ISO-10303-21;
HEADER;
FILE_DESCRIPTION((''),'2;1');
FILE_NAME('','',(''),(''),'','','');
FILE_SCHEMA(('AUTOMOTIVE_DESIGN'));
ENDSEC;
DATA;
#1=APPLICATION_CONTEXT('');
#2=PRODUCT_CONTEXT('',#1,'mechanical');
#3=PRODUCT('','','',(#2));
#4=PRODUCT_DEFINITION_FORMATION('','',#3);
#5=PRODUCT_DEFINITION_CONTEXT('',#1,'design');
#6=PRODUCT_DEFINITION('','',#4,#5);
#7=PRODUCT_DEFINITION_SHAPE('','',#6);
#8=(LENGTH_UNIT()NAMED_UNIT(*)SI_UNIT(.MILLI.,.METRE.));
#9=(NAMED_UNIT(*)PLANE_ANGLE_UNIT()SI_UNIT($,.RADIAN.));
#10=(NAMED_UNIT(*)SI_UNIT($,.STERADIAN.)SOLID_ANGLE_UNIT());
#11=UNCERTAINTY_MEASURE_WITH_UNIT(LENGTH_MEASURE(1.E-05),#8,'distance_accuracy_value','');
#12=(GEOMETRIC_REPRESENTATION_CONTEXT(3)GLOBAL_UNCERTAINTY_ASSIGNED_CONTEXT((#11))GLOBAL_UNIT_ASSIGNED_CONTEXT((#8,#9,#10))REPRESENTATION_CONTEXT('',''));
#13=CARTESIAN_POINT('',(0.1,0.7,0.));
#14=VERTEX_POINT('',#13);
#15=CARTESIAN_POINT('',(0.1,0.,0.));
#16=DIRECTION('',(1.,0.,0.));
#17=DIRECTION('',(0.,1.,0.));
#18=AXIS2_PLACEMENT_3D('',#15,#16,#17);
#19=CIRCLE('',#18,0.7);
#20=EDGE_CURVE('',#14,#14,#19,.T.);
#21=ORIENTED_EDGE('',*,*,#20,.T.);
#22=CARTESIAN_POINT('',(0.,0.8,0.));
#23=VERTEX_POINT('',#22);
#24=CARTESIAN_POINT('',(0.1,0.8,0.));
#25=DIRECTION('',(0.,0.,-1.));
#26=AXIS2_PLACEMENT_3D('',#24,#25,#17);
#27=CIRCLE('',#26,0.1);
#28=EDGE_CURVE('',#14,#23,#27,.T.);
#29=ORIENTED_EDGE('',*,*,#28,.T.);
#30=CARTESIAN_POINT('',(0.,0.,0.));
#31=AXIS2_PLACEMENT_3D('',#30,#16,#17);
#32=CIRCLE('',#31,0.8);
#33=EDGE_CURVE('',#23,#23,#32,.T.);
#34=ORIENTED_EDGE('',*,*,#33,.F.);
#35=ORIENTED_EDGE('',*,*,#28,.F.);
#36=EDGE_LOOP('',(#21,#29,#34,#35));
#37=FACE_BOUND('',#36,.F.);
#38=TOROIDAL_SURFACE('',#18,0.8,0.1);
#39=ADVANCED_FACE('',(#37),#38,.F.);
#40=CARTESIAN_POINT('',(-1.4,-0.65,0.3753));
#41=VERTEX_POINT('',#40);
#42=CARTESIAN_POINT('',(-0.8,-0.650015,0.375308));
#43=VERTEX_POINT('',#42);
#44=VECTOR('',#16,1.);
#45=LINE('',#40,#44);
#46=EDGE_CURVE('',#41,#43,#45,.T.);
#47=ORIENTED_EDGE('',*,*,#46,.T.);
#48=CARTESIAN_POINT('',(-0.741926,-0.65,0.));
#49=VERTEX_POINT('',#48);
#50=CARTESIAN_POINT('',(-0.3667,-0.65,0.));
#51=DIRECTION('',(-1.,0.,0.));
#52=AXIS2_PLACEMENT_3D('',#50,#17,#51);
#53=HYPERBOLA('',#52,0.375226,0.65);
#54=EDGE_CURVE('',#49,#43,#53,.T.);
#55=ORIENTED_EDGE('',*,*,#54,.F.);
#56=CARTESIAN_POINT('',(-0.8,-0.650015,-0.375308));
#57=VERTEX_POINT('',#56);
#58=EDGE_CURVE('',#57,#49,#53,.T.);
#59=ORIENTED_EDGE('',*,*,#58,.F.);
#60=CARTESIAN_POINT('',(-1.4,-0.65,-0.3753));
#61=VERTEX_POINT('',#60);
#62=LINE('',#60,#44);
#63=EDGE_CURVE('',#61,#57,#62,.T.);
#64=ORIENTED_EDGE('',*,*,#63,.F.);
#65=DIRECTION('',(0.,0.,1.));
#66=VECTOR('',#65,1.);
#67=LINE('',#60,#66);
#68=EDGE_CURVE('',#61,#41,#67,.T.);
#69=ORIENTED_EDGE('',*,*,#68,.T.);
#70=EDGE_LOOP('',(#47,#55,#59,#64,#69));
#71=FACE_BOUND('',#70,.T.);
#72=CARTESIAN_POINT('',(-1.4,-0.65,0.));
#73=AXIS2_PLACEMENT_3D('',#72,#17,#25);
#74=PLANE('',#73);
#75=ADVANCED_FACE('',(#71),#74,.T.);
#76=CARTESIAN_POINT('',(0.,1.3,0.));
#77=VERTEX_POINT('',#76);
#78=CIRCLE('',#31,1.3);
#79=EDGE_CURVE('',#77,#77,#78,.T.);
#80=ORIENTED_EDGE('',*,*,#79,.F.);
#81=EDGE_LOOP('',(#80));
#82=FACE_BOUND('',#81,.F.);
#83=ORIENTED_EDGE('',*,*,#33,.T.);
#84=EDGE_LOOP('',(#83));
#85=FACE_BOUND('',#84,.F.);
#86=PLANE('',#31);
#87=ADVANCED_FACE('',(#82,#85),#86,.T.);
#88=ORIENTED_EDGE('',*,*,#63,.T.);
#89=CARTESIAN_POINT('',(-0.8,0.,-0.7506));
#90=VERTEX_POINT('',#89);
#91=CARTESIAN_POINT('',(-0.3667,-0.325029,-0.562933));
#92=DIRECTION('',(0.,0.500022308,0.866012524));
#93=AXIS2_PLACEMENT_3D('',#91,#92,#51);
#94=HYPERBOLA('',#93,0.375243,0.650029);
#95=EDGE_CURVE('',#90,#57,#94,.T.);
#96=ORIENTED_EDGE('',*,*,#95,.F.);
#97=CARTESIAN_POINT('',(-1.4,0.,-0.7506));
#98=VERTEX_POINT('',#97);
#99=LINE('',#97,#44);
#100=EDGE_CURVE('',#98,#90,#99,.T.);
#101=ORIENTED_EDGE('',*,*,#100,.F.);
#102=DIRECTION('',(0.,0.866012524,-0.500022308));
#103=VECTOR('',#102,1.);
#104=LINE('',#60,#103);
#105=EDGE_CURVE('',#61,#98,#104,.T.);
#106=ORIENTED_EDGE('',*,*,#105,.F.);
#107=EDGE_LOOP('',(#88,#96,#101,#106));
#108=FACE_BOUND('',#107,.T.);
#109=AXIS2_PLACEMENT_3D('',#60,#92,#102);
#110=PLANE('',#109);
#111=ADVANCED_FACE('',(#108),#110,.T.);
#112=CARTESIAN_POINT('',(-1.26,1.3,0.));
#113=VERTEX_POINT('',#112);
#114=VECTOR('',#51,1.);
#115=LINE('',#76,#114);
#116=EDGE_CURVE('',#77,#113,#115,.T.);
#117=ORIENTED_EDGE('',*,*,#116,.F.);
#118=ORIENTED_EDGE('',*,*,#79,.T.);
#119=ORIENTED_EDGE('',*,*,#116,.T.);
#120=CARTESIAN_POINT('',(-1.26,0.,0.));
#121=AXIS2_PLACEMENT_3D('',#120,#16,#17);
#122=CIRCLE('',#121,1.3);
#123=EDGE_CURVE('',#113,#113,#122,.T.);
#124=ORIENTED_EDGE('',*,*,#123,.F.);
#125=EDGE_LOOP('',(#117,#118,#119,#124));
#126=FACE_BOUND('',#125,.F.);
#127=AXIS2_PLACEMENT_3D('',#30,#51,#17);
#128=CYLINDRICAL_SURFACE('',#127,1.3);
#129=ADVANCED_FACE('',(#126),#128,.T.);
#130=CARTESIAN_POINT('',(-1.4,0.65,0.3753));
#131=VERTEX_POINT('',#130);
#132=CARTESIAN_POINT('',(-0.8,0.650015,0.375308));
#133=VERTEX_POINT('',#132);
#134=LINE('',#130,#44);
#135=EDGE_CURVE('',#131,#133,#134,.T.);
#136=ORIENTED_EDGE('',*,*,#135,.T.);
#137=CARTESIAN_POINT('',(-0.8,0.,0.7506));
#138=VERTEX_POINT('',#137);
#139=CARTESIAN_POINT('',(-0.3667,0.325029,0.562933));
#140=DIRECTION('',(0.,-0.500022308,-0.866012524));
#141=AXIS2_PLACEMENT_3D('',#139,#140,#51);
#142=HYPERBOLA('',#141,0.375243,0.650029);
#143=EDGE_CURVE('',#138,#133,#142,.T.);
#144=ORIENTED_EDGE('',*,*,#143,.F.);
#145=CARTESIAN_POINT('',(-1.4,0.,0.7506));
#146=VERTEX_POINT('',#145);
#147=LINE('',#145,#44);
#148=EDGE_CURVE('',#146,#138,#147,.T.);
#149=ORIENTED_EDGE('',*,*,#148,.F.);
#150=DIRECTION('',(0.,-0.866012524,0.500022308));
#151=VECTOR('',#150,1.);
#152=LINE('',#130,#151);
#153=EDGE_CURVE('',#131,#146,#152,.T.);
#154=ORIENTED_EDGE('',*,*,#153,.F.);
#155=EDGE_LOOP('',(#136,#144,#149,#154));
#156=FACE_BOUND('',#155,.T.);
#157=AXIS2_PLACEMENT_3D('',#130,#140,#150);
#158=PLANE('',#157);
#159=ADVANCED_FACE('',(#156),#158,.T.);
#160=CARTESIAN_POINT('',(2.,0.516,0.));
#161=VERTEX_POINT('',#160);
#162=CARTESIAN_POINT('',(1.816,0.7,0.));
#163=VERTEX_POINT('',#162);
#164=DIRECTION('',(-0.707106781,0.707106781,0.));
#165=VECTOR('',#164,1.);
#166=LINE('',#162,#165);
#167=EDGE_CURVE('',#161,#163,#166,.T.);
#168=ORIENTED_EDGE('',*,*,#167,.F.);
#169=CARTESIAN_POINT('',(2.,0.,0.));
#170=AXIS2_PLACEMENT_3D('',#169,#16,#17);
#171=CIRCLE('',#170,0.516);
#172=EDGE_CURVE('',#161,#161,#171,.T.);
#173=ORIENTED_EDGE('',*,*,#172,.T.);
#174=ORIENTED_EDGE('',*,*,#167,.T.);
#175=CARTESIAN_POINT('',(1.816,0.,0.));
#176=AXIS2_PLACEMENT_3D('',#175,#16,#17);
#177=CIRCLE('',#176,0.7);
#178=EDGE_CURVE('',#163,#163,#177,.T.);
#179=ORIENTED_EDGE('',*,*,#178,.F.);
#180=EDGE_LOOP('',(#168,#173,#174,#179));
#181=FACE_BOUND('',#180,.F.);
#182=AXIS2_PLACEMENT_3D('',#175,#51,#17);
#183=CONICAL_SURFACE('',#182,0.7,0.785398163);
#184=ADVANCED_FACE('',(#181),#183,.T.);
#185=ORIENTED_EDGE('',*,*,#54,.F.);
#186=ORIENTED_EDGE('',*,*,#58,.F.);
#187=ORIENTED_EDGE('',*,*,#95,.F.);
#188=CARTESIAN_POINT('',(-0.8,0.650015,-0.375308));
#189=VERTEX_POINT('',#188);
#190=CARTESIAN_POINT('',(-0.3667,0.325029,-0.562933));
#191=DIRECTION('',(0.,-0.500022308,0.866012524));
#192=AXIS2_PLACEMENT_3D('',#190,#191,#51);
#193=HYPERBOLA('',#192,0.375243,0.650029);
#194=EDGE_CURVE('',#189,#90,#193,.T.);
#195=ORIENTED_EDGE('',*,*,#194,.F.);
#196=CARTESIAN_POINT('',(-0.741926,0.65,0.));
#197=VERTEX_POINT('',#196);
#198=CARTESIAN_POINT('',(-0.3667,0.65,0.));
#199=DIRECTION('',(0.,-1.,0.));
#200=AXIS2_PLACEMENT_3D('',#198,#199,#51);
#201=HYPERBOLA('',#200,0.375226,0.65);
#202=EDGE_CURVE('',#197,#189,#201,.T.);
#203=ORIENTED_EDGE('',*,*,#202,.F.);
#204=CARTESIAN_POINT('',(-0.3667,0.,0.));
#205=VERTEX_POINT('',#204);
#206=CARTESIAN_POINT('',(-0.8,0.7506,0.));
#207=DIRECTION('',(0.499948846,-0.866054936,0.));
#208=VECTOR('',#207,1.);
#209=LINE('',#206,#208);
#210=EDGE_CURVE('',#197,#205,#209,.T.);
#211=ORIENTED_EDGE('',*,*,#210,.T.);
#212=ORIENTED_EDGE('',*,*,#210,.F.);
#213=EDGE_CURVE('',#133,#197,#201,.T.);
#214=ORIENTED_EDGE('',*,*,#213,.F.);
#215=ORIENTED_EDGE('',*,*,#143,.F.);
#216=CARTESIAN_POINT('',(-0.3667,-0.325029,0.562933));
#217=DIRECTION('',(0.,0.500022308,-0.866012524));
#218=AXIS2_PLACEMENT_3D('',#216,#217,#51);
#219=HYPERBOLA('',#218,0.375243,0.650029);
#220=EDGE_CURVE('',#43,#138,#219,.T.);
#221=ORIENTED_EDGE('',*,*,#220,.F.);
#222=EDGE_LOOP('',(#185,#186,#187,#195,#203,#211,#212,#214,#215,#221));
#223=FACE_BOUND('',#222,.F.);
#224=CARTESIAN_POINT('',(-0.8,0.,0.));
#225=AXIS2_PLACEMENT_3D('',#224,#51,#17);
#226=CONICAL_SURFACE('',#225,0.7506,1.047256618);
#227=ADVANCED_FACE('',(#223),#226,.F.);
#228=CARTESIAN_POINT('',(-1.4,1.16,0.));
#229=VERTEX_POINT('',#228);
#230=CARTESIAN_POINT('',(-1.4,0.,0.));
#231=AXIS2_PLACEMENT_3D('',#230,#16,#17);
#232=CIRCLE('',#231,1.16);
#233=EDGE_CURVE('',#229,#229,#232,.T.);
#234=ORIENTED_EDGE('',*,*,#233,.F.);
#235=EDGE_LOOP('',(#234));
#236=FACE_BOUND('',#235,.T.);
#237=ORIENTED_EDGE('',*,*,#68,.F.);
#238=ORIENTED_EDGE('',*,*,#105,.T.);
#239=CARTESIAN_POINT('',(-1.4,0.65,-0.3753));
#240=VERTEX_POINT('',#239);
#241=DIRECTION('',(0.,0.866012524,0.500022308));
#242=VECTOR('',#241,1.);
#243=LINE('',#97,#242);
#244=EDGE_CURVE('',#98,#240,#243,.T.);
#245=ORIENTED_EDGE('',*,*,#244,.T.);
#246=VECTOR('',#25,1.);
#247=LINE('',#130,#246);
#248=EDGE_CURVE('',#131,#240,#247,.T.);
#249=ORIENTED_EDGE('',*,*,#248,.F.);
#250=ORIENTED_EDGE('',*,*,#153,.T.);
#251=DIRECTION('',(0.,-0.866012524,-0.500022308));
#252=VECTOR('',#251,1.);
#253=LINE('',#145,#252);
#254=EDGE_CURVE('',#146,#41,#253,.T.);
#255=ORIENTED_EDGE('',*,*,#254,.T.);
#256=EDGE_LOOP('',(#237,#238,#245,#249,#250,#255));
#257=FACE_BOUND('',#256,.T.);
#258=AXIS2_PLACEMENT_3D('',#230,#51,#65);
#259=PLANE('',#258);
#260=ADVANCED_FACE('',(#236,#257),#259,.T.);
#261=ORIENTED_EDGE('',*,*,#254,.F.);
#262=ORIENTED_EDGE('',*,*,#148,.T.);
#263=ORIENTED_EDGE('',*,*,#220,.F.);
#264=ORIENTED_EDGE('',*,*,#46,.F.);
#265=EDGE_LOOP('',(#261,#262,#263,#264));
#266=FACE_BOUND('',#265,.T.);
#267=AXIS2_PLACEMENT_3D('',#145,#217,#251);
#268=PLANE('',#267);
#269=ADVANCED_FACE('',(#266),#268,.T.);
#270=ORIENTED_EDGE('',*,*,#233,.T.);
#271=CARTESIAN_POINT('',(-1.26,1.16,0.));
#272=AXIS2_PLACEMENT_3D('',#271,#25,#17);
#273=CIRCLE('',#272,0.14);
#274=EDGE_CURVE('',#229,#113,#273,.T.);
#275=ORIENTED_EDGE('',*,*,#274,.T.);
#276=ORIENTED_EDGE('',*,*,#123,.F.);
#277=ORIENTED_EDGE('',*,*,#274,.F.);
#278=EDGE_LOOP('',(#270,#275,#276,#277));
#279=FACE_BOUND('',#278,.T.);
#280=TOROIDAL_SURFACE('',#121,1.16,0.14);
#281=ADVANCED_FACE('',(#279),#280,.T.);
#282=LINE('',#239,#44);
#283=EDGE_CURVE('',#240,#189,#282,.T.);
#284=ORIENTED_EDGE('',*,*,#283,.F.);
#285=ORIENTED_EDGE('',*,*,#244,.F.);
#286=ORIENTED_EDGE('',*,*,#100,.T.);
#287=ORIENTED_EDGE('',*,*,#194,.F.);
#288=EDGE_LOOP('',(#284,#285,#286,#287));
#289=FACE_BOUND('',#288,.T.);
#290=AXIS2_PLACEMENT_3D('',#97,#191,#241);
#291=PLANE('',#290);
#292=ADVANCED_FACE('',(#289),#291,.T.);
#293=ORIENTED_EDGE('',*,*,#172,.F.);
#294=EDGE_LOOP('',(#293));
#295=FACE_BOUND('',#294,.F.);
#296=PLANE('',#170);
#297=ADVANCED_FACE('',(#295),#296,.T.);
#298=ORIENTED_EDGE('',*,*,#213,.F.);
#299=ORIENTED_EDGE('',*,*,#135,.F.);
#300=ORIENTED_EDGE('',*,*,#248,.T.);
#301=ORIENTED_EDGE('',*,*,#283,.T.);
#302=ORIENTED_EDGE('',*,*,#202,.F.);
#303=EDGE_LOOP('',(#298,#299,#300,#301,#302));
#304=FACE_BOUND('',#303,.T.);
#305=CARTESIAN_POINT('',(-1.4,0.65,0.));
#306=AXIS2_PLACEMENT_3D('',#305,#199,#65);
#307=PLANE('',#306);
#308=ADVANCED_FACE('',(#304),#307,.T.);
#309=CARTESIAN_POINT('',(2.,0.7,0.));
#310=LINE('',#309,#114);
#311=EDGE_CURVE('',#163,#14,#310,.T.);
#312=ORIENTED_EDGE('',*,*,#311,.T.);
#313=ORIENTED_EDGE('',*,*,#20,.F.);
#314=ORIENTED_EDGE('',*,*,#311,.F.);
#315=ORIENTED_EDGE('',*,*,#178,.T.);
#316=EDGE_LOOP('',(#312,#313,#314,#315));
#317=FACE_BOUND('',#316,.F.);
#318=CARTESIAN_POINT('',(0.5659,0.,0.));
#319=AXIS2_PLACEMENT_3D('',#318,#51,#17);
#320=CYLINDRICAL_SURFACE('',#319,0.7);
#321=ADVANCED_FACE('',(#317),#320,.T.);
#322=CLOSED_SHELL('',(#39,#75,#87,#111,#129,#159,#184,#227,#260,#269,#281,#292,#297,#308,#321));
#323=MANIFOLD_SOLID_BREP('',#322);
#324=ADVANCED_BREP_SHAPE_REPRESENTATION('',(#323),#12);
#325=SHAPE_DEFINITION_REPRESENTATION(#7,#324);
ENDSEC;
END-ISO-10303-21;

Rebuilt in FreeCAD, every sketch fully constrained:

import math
import FreeCAD as App
import Part
import Sketcher


def edges_at(feature, points):
    """Names of the edges that pass closest to the given points."""
    edges = feature.Shape.Edges
    near = lambda p: min(range(len(edges)), key=lambda i: edges[i].distToShape(Part.Vertex(*p))[0])
    return sorted({f"Edge{near(p) + 1}" for p in points})


def add_polygon(sketch, points):
    """Adds a closed chain of lines whose ends are joined by coincident constraints."""
    first, n = sketch.GeometryCount, len(points)
    for a, b in zip(points, points[1:] + points[:1]):
        sketch.addGeometry(Part.LineSegment(App.Vector(*a, 0), App.Vector(*b, 0)), False)
    for i in range(n):
        sketch.addConstraint(Sketcher.Constraint("Coincident", first + i, 2, first + (i + 1) % n, 1))

doc = App.newDocument("Part")
body = doc.addObject("PartDesign::Body", "Body")

# Sketch on XY plane
sketch1 = doc.addObject("Sketcher::SketchObject", "Sketch")
body.addObject(sketch1)
sketch1.AttachmentSupport = (doc.XY_Plane, [""])
sketch1.MapMode = "FlatFace"
add_polygon(sketch1, [(-0.8, 0.8), (-0.4, 0), (2, 0), (2, 0.7), (0, 0.7), (0, 1.3), (-1.4, 1.3), (-1.4, 0.8)])  # lines 0-7
sketch1.addConstraint([
    Sketcher.Constraint("Horizontal", 1),
    Sketcher.Constraint("Vertical", 2),
    Sketcher.Constraint("Horizontal", 3),
    Sketcher.Constraint("Vertical", 4),
    Sketcher.Constraint("Horizontal", 5),
    Sketcher.Constraint("Vertical", 6),
    Sketcher.Constraint("Horizontal", 7),
    Sketcher.Constraint("PointOnObject", 0, 2, -1),
    Sketcher.Constraint("PointOnObject", 3, 2, -2),
    Sketcher.Constraint("Equal", 7, 4),
    Sketcher.Constraint("DistanceX", 3, 2, 3, 1, 2.0),
    Sketcher.Constraint("DistanceX", 5, 2, 5, 1, 1.4),
    Sketcher.Constraint("DistanceX", 7, 1, 7, 2, 0.6),
    Sketcher.Constraint("DistanceY", 2, 1, 2, 2, 0.7),
    Sketcher.Constraint("DistanceX", 1, 1, 1, 2, 2.3667),
    Sketcher.Constraint("DistanceY", 6, 2, 6, 1, 0.5494),
])
revolution = doc.addObject("PartDesign::Revolution", "Revolution")
body.addObject(revolution)
revolution.Profile = sketch1
revolution.ReferenceAxis = (sketch1, ["H_Axis"])
revolution.Angle = 360

# Sketch on YZ plane
sketch2 = doc.addObject("Sketcher::SketchObject", "Sketch001")
body.addObject(sketch2)
sketch2.AttachmentSupport = (doc.YZ_Plane, [""])
sketch2.MapMode = "FlatFace"
sketch2.AttachmentOffset = App.Placement(App.Vector(0, 0, -1.4), App.Rotation())
sketch2.addGeometry([
    Part.LineSegment(App.Vector(0.7, 0.4, 0), App.Vector(0, 0.8, 0)),  # 0
    Part.ArcOfCircle(Part.Circle(App.Vector(0, 0, 0), App.Vector(0, 0, 1), 0.8), math.radians(30), math.radians(90)),  # 1
    Part.ArcOfCircle(Part.Circle(App.Vector(0, 0, 0), App.Vector(0, 0, 1), 0.8), math.radians(90), math.radians(150)),  # 2
    Part.LineSegment(App.Vector(0, 0.8, 0), App.Vector(-0.7, 0.4, 0)),  # 3
    Part.ArcOfCircle(Part.Circle(App.Vector(0, 0, 0), App.Vector(0, 0, 1), 0.8), math.radians(-30), math.radians(30)),  # 4
    Part.LineSegment(App.Vector(0.7, 0.4, 0), App.Vector(0.7, -0.4, 0)),  # 5
    Part.LineSegment(App.Vector(-0.7, 0.4, 0), App.Vector(-0.7, -0.4, 0)),  # 6
    Part.ArcOfCircle(Part.Circle(App.Vector(0, 0, 0), App.Vector(0, 0, 1), 0.8), math.radians(150), math.radians(210)),  # 7
    Part.LineSegment(App.Vector(-0.7, -0.4, 0), App.Vector(0, -0.8, 0)),  # 8
    Part.ArcOfCircle(Part.Circle(App.Vector(0, 0, 0), App.Vector(0, 0, 1), 0.8), math.radians(-150), math.radians(-90)),  # 9
    Part.ArcOfCircle(Part.Circle(App.Vector(0, 0, 0), App.Vector(0, 0, 1), 0.8), math.radians(-90), math.radians(-30)),  # 10
    Part.LineSegment(App.Vector(0, -0.8, 0), App.Vector(0.7, -0.4, 0)),  # 11
], False)
sketch2.addConstraint([
    Sketcher.Constraint("Coincident", 0, 1, 1, 1),
    Sketcher.Constraint("Coincident", 1, 2, 0, 2),
    Sketcher.Constraint("Coincident", 2, 1, 3, 1),
    Sketcher.Constraint("Coincident", 3, 2, 2, 2),
    Sketcher.Constraint("Coincident", 4, 1, 5, 2),
    Sketcher.Constraint("Coincident", 5, 1, 4, 2),
    Sketcher.Constraint("Coincident", 6, 1, 7, 1),
    Sketcher.Constraint("Coincident", 7, 2, 6, 2),
    Sketcher.Constraint("Coincident", 8, 1, 9, 1),
    Sketcher.Constraint("Coincident", 9, 2, 8, 2),
    Sketcher.Constraint("Coincident", 10, 1, 11, 1),
    Sketcher.Constraint("Coincident", 11, 2, 10, 2),
    Sketcher.Constraint("Vertical", 5),
    Sketcher.Constraint("Vertical", 6),
    Sketcher.Constraint("Coincident", 1, 3, -1, 1),
    Sketcher.Constraint("Coincident", 2, 3, -1, 1),
    Sketcher.Constraint("Coincident", 4, 3, -1, 1),
    Sketcher.Constraint("Coincident", 7, 3, -1, 1),
    Sketcher.Constraint("Coincident", 9, 3, -1, 1),
    Sketcher.Constraint("Coincident", 10, 3, -1, 1),
    Sketcher.Constraint("Coincident", 2, 1, 1, 2),
    Sketcher.Constraint("Coincident", 5, 1, 0, 1),
    Sketcher.Constraint("Coincident", 6, 1, 3, 2),
    Sketcher.Constraint("Coincident", 8, 1, 7, 2),
    Sketcher.Constraint("Coincident", 10, 1, 9, 2),
    Sketcher.Constraint("PointOnObject", 1, 2, -2),
    Sketcher.Constraint("PointOnObject", 9, 2, -2),
    Sketcher.Constraint("Parallel", 0, 8),
    Sketcher.Constraint("Parallel", 3, 11),
    Sketcher.Constraint("Radius", 1, 0.7506),
    Sketcher.Constraint("DistanceX", -1, 1, 0, 1, 0.65),
])
pad1 = doc.addObject("PartDesign::Pad", "Pad")
body.addObject(pad1)
pad1.Profile = sketch2
pad1.Type = "UpToFirst"
doc.recompute()

fillet = doc.addObject("PartDesign::Fillet", "Fillet")
body.addObject(fillet)
fillet.Base = (pad1, edges_at(pad1, [(-1.4, -1.3, 0)]))
fillet.Radius = 0.14
doc.recompute()

chamfer = doc.addObject("PartDesign::Chamfer", "Chamfer")
body.addObject(chamfer)
chamfer.Base = (fillet, edges_at(fillet, [(2, -0.7, 0)]))
chamfer.ChamferType = "Two distances"
chamfer.Size = 0.184
chamfer.Size2 = 0.184
doc.recompute()

fillet2 = doc.addObject("PartDesign::Fillet", "Fillet001")
body.addObject(fillet2)
fillet2.Base = (chamfer, edges_at(chamfer, [(0, -0.7, 0)]))
fillet2.Radius = 0.1

doc.recompute()
